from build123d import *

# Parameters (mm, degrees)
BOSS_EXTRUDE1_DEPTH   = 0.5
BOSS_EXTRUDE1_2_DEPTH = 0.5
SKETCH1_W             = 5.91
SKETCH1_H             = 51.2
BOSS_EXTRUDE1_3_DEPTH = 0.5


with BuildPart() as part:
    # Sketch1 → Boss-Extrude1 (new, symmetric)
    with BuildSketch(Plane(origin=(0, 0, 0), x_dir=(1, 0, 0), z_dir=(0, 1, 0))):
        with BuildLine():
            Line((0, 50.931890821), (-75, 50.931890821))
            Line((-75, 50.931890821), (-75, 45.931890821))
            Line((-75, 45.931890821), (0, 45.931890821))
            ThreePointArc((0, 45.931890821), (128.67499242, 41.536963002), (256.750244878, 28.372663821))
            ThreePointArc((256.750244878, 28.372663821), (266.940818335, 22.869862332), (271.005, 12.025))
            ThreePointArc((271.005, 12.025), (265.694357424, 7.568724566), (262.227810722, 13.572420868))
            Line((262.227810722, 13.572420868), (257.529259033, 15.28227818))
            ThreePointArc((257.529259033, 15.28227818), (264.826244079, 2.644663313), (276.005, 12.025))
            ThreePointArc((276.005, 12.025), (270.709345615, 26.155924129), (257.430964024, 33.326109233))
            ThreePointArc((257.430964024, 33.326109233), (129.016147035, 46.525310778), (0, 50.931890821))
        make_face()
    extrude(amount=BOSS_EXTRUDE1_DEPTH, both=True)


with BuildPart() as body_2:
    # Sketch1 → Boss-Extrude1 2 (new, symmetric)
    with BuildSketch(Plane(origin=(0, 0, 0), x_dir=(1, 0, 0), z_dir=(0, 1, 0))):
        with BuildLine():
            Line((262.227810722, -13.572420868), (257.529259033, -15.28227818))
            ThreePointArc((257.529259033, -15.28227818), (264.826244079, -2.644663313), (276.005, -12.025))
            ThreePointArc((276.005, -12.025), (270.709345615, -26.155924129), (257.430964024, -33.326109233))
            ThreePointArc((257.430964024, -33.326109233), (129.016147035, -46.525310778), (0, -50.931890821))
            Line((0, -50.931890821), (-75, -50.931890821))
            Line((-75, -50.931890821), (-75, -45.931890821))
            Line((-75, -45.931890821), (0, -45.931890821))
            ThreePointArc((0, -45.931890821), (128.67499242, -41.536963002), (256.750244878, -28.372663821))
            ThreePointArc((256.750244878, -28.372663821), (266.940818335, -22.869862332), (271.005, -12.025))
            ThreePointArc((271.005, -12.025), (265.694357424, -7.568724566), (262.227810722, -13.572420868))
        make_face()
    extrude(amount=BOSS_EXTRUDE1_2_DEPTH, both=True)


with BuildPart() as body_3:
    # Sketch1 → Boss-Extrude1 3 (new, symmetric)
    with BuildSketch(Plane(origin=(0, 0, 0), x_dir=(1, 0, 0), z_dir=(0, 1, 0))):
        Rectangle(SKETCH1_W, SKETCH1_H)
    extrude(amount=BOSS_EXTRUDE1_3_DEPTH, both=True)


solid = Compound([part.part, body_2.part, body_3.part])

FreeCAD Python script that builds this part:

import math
import FreeCAD as App
import Part
import Sketcher

V = App.Vector


def add_polygon(sketch, points):
    """Adds a closed chain of lines whose ends are joined by coincident constraints."""
    first, n = sketch.GeometryCount, len(points)
    for a, b in zip(points, points[1:] + points[:1]):
        sketch.addGeometry(Part.LineSegment(App.Vector(*a, 0), App.Vector(*b, 0)), False)
    for i in range(n):
        sketch.addConstraint(Sketcher.Constraint("Coincident", first + i, 2, first + (i + 1) % n, 1))

doc = App.newDocument("Part")
params = doc.addObject("Spreadsheet::Sheet", "Params")
for row, (alias, value) in enumerate([
    ("sketch1_width", "75 mm"),
    ("sketch1_height", "5 mm"),
    ("pad1_length", "1 mm"),
    ("sketch2_width", "75 mm"),
    ("sketch2_height", "5 mm"),
    ("pad2_length", "1 mm"),
    ("sketch3_height", "51.2 mm"),
    ("sketch3_width", "5.91 mm"),
    ("pad3_length", "1 mm"),
], start=1):
    params.set(f"A{row}", alias)
    params.set(f"B{row}", "=" + value)
    params.setAlias(f"B{row}", alias)

body = doc.addObject("PartDesign::Body", "Body")

# Sketch on XZ plane
sketch1 = doc.addObject("Sketcher::SketchObject", "Sketch")
body.addObject(sketch1)
sketch1.AttachmentSupport = (doc.XZ_Plane, [""])
sketch1.MapMode = "FlatFace"
sketch1.addGeometry([
    Part.LineSegment(V(0, -50.931891, 0), V(-75, -50.931891, 0)),  # 0
    Part.LineSegment(V(-75, -50.931891, 0), V(-75, -45.931891, 0)),  # 1
    Part.LineSegment(V(-75, -45.931891, 0), V(0, -45.931891, 0)),  # 2
    Part.ArcOfCircle(Part.Circle(V(0, 1839.943117, 0), V(0, 0, 1), 1885.875008), math.radians(-90), math.radians(-82.175233)),  # 3
    Part.ArcOfCircle(Part.Circle(V(254.503694, -12.025, 0), V(0, 0, 1), 16.501306), math.radians(-82.175233), math.radians(0)),  # 4
    Part.ArcOfCircle(Part.Circle(V(266.48, -12.025, 0), V(0, 0, 1), 4.525), math.radians(0), math.radians(199.997032)),  # 5
    Part.LineSegment(V(262.227811, -13.572421, 0), V(257.529259, -15.282278, 0)),  # 6
    Part.ArcOfCircle(Part.Circle(V(266.48, -12.025, 0), V(0, 0, 1), 9.525), math.radians(0), math.radians(199.997032)),  # 7
    Part.ArcOfCircle(Part.Circle(V(254.503694, -12.025, 0), V(0, 0, 1), 21.501306), math.radians(-82.175233), math.radians(0)),  # 8
    Part.ArcOfCircle(Part.Circle(V(0, 1839.943117, 0), V(0, 0, 1), 1890.875007), math.radians(-90), math.radians(-82.175233)),  # 9
], False)
sketch1.addConstraint([
    Sketcher.Constraint("Coincident", 0, 2, 1, 1),
    Sketcher.Constraint("Coincident", 1, 2, 2, 1),
    Sketcher.Constraint("Tangent", 2, 2, 3, 1),
    Sketcher.Constraint("Tangent", 3, 2, 4, 1),
    Sketcher.Constraint("Tangent", 4, 2, 5, 1),
    Sketcher.Constraint("Coincident", 5, 2, 6, 1),
    Sketcher.Constraint("Coincident", 6, 2, 7, 2),
    Sketcher.Constraint("Tangent", 7, 1, 8, 2),
    Sketcher.Constraint("Tangent", 8, 1, 9, 2),
    Sketcher.Constraint("Tangent", 9, 1, 0, 1),
    Sketcher.Constraint("Horizontal", 0),
    Sketcher.Constraint("Vertical", 1),
    Sketcher.Constraint("Horizontal", 2),
    Sketcher.Constraint("Coincident", 7, 3, 5, 3),
    Sketcher.Constraint("Coincident", 8, 3, 4, 3),
    Sketcher.Constraint("Coincident", 9, 3, 3, 3),
    Sketcher.Constraint("PointOnObject", 3, 3, -2),
    Sketcher.Constraint("Horizontal", 4, 3, 5, 3),
    Sketcher.Constraint("DistanceX", 0, 2, 0, 1, 75.0),
    Sketcher.Constraint("DistanceY", 1, 1, 1, 2, 5.0),
    Sketcher.Constraint("Radius", 5, 4.525),
    Sketcher.Constraint("DistanceX", -1, 1, 5, 3, 266.48),
    Sketcher.Constraint("DistanceY", 4, 3, -1, 1, 12.025),
    Sketcher.Constraint("Radius", 3, 1885.875008),
    Sketcher.Constraint("Radius", 4, 16.501306),
    Sketcher.Constraint("DistanceX", -1, 1, 5, 2, 262.227811),
    Sketcher.Constraint("DistanceX", -1, 1, 6, 2, 257.529259),
])
sketch1.setExpression("Constraints[18]", "Params.sketch1_width")
sketch1.setExpression("Constraints[19]", "Params.sketch1_height")
pad1 = doc.addObject("PartDesign::Pad", "Pad")
body.addObject(pad1)
pad1.Profile = sketch1
pad1.setExpression("Length", "Params.pad1_length")
pad1.Midplane = True
body2 = doc.addObject("PartDesign::Body", "Body001")

# Sketch on XZ plane
sketch2 = doc.addObject("Sketcher::SketchObject", "Sketch001")
body2.addObject(sketch2)
sketch2.AttachmentSupport = (doc.getObject("XZ_Plane001"), [""])
sketch2.MapMode = "FlatFace"
sketch2.addGeometry([
    Part.LineSegment(V(257.529259, 15.282278, 0), V(262.227811, 13.572421, 0)),  # 0
    Part.ArcOfCircle(Part.Circle(V(266.48, 12.025, 0), V(0, 0, 1), 4.525), math.radians(160.002968), math.radians(360)),  # 1
    Part.ArcOfCircle(Part.Circle(V(254.503694, 12.025, 0), V(0, 0, 1), 16.501306), math.radians(0), math.radians(82.175233)),  # 2
    Part.ArcOfCircle(Part.Circle(V(0, -1839.943117, 0), V(0, 0, 1), 1885.875008), math.radians(82.175233), math.radians(90)),  # 3
    Part.LineSegment(V(0, 45.931891, 0), V(-75, 45.931891, 0)),  # 4
    Part.LineSegment(V(-75, 45.931891, 0), V(-75, 50.931891, 0)),  # 5
    Part.LineSegment(V(-75, 50.931891, 0), V(0, 50.931891, 0)),  # 6
    Part.ArcOfCircle(Part.Circle(V(0, -1839.943117, 0), V(0, 0, 1), 1890.875007), math.radians(82.175233), math.radians(90)),  # 7
    Part.ArcOfCircle(Part.Circle(V(254.503694, 12.025, 0), V(0, 0, 1), 21.501306), math.radians(0), math.radians(82.175233)),  # 8
    Part.ArcOfCircle(Part.Circle(V(266.48, 12.025, 0), V(0, 0, 1), 9.525), math.radians(160.002968), math.radians(360)),  # 9
], False)
sketch2.addConstraint([
    Sketcher.Constraint("Coincident", 0, 2, 1, 1),
    Sketcher.Constraint("Tangent", 1, 2, 2, 1),
    Sketcher.Constraint("Tangent", 2, 2, 3, 1),
    Sketcher.Constraint("Tangent", 3, 2, 4, 1),
    Sketcher.Constraint("Coincident", 4, 2, 5, 1),
    Sketcher.Constraint("Coincident", 5, 2, 6, 1),
    Sketcher.Constraint("Tangent", 6, 2, 7, 2),
    Sketcher.Constraint("Tangent", 7, 1, 8, 2),
    Sketcher.Constraint("Tangent", 8, 1, 9, 2),
    Sketcher.Constraint("Coincident", 9, 1, 0, 1),
    Sketcher.Constraint("Horizontal", 4),
    Sketcher.Constraint("Vertical", 5),
    Sketcher.Constraint("Horizontal", 6),
    Sketcher.Constraint("Coincident", 7, 3, 3, 3),
    Sketcher.Constraint("Coincident", 8, 3, 2, 3),
    Sketcher.Constraint("Coincident", 9, 3, 1, 3),
    Sketcher.Constraint("PointOnObject", 3, 3, -2),
    Sketcher.Constraint("Horizontal", 1, 3, 2, 3),
    Sketcher.Constraint("DistanceX", 4, 2, 4, 1, 75.0),
    Sketcher.Constraint("DistanceY", 5, 1, 5, 2, 5.0),
    Sketcher.Constraint("Radius", 1, 4.525),
    Sketcher.Constraint("DistanceX", -1, 1, 1, 3, 266.48),
    Sketcher.Constraint("DistanceY", -1, 1, 1, 3, 12.025),
    Sketcher.Constraint("Radius", 2, 16.501306),
    Sketcher.Constraint("Radius", 3, 1885.875008),
    Sketcher.Constraint("DistanceX", -1, 1, 0, 2, 262.227811),
    Sketcher.Constraint("DistanceX", -1, 1, 9, 1, 257.529259),
])
sketch2.setExpression("Constraints[18]", "Params.sketch2_width")
sketch2.setExpression("Constraints[19]", "Params.sketch2_height")
pad2 = doc.addObject("PartDesign::Pad", "Pad001")
body2.addObject(pad2)
pad2.Profile = sketch2
pad2.setExpression("Length", "Params.pad2_length")
pad2.Midplane = True
body3 = doc.addObject("PartDesign::Body", "Body002")

# Sketch on XZ plane
sketch3 = doc.addObject("Sketcher::SketchObject", "Sketch002")
body3.addObject(sketch3)
sketch3.AttachmentSupport = (doc.getObject("XZ_Plane002"), [""])
sketch3.MapMode = "FlatFace"
add_polygon(sketch3, [(-2.955, -25.6), (-2.955, 25.6), (2.955, 25.6), (2.955, -25.6)])  # lines 0-3
sketch3.addConstraint([
    Sketcher.Constraint("Vertical", 0),
    Sketcher.Constraint("Horizontal", 1),
    Sketcher.Constraint("Vertical", 2),
    Sketcher.Constraint("Horizontal", 3),
    Sketcher.Constraint("Symmetric", 0, 2, 2, 2, -1, 1),
    Sketcher.Constraint("DistanceY", 0, 1, 0, 2, 51.2),
    Sketcher.Constraint("DistanceX", 1, 1, 1, 2, 5.91),
])
sketch3.setExpression("Constraints[9]", "Params.sketch3_height")
sketch3.setExpression("Constraints[10]", "Params.sketch3_width")
pad3 = doc.addObject("PartDesign::Pad", "Pad002")
body3.addObject(pad3)
pad3.Profile = sketch3
pad3.setExpression("Length", "Params.pad3_length")
pad3.Midplane = True

doc.recompute()
